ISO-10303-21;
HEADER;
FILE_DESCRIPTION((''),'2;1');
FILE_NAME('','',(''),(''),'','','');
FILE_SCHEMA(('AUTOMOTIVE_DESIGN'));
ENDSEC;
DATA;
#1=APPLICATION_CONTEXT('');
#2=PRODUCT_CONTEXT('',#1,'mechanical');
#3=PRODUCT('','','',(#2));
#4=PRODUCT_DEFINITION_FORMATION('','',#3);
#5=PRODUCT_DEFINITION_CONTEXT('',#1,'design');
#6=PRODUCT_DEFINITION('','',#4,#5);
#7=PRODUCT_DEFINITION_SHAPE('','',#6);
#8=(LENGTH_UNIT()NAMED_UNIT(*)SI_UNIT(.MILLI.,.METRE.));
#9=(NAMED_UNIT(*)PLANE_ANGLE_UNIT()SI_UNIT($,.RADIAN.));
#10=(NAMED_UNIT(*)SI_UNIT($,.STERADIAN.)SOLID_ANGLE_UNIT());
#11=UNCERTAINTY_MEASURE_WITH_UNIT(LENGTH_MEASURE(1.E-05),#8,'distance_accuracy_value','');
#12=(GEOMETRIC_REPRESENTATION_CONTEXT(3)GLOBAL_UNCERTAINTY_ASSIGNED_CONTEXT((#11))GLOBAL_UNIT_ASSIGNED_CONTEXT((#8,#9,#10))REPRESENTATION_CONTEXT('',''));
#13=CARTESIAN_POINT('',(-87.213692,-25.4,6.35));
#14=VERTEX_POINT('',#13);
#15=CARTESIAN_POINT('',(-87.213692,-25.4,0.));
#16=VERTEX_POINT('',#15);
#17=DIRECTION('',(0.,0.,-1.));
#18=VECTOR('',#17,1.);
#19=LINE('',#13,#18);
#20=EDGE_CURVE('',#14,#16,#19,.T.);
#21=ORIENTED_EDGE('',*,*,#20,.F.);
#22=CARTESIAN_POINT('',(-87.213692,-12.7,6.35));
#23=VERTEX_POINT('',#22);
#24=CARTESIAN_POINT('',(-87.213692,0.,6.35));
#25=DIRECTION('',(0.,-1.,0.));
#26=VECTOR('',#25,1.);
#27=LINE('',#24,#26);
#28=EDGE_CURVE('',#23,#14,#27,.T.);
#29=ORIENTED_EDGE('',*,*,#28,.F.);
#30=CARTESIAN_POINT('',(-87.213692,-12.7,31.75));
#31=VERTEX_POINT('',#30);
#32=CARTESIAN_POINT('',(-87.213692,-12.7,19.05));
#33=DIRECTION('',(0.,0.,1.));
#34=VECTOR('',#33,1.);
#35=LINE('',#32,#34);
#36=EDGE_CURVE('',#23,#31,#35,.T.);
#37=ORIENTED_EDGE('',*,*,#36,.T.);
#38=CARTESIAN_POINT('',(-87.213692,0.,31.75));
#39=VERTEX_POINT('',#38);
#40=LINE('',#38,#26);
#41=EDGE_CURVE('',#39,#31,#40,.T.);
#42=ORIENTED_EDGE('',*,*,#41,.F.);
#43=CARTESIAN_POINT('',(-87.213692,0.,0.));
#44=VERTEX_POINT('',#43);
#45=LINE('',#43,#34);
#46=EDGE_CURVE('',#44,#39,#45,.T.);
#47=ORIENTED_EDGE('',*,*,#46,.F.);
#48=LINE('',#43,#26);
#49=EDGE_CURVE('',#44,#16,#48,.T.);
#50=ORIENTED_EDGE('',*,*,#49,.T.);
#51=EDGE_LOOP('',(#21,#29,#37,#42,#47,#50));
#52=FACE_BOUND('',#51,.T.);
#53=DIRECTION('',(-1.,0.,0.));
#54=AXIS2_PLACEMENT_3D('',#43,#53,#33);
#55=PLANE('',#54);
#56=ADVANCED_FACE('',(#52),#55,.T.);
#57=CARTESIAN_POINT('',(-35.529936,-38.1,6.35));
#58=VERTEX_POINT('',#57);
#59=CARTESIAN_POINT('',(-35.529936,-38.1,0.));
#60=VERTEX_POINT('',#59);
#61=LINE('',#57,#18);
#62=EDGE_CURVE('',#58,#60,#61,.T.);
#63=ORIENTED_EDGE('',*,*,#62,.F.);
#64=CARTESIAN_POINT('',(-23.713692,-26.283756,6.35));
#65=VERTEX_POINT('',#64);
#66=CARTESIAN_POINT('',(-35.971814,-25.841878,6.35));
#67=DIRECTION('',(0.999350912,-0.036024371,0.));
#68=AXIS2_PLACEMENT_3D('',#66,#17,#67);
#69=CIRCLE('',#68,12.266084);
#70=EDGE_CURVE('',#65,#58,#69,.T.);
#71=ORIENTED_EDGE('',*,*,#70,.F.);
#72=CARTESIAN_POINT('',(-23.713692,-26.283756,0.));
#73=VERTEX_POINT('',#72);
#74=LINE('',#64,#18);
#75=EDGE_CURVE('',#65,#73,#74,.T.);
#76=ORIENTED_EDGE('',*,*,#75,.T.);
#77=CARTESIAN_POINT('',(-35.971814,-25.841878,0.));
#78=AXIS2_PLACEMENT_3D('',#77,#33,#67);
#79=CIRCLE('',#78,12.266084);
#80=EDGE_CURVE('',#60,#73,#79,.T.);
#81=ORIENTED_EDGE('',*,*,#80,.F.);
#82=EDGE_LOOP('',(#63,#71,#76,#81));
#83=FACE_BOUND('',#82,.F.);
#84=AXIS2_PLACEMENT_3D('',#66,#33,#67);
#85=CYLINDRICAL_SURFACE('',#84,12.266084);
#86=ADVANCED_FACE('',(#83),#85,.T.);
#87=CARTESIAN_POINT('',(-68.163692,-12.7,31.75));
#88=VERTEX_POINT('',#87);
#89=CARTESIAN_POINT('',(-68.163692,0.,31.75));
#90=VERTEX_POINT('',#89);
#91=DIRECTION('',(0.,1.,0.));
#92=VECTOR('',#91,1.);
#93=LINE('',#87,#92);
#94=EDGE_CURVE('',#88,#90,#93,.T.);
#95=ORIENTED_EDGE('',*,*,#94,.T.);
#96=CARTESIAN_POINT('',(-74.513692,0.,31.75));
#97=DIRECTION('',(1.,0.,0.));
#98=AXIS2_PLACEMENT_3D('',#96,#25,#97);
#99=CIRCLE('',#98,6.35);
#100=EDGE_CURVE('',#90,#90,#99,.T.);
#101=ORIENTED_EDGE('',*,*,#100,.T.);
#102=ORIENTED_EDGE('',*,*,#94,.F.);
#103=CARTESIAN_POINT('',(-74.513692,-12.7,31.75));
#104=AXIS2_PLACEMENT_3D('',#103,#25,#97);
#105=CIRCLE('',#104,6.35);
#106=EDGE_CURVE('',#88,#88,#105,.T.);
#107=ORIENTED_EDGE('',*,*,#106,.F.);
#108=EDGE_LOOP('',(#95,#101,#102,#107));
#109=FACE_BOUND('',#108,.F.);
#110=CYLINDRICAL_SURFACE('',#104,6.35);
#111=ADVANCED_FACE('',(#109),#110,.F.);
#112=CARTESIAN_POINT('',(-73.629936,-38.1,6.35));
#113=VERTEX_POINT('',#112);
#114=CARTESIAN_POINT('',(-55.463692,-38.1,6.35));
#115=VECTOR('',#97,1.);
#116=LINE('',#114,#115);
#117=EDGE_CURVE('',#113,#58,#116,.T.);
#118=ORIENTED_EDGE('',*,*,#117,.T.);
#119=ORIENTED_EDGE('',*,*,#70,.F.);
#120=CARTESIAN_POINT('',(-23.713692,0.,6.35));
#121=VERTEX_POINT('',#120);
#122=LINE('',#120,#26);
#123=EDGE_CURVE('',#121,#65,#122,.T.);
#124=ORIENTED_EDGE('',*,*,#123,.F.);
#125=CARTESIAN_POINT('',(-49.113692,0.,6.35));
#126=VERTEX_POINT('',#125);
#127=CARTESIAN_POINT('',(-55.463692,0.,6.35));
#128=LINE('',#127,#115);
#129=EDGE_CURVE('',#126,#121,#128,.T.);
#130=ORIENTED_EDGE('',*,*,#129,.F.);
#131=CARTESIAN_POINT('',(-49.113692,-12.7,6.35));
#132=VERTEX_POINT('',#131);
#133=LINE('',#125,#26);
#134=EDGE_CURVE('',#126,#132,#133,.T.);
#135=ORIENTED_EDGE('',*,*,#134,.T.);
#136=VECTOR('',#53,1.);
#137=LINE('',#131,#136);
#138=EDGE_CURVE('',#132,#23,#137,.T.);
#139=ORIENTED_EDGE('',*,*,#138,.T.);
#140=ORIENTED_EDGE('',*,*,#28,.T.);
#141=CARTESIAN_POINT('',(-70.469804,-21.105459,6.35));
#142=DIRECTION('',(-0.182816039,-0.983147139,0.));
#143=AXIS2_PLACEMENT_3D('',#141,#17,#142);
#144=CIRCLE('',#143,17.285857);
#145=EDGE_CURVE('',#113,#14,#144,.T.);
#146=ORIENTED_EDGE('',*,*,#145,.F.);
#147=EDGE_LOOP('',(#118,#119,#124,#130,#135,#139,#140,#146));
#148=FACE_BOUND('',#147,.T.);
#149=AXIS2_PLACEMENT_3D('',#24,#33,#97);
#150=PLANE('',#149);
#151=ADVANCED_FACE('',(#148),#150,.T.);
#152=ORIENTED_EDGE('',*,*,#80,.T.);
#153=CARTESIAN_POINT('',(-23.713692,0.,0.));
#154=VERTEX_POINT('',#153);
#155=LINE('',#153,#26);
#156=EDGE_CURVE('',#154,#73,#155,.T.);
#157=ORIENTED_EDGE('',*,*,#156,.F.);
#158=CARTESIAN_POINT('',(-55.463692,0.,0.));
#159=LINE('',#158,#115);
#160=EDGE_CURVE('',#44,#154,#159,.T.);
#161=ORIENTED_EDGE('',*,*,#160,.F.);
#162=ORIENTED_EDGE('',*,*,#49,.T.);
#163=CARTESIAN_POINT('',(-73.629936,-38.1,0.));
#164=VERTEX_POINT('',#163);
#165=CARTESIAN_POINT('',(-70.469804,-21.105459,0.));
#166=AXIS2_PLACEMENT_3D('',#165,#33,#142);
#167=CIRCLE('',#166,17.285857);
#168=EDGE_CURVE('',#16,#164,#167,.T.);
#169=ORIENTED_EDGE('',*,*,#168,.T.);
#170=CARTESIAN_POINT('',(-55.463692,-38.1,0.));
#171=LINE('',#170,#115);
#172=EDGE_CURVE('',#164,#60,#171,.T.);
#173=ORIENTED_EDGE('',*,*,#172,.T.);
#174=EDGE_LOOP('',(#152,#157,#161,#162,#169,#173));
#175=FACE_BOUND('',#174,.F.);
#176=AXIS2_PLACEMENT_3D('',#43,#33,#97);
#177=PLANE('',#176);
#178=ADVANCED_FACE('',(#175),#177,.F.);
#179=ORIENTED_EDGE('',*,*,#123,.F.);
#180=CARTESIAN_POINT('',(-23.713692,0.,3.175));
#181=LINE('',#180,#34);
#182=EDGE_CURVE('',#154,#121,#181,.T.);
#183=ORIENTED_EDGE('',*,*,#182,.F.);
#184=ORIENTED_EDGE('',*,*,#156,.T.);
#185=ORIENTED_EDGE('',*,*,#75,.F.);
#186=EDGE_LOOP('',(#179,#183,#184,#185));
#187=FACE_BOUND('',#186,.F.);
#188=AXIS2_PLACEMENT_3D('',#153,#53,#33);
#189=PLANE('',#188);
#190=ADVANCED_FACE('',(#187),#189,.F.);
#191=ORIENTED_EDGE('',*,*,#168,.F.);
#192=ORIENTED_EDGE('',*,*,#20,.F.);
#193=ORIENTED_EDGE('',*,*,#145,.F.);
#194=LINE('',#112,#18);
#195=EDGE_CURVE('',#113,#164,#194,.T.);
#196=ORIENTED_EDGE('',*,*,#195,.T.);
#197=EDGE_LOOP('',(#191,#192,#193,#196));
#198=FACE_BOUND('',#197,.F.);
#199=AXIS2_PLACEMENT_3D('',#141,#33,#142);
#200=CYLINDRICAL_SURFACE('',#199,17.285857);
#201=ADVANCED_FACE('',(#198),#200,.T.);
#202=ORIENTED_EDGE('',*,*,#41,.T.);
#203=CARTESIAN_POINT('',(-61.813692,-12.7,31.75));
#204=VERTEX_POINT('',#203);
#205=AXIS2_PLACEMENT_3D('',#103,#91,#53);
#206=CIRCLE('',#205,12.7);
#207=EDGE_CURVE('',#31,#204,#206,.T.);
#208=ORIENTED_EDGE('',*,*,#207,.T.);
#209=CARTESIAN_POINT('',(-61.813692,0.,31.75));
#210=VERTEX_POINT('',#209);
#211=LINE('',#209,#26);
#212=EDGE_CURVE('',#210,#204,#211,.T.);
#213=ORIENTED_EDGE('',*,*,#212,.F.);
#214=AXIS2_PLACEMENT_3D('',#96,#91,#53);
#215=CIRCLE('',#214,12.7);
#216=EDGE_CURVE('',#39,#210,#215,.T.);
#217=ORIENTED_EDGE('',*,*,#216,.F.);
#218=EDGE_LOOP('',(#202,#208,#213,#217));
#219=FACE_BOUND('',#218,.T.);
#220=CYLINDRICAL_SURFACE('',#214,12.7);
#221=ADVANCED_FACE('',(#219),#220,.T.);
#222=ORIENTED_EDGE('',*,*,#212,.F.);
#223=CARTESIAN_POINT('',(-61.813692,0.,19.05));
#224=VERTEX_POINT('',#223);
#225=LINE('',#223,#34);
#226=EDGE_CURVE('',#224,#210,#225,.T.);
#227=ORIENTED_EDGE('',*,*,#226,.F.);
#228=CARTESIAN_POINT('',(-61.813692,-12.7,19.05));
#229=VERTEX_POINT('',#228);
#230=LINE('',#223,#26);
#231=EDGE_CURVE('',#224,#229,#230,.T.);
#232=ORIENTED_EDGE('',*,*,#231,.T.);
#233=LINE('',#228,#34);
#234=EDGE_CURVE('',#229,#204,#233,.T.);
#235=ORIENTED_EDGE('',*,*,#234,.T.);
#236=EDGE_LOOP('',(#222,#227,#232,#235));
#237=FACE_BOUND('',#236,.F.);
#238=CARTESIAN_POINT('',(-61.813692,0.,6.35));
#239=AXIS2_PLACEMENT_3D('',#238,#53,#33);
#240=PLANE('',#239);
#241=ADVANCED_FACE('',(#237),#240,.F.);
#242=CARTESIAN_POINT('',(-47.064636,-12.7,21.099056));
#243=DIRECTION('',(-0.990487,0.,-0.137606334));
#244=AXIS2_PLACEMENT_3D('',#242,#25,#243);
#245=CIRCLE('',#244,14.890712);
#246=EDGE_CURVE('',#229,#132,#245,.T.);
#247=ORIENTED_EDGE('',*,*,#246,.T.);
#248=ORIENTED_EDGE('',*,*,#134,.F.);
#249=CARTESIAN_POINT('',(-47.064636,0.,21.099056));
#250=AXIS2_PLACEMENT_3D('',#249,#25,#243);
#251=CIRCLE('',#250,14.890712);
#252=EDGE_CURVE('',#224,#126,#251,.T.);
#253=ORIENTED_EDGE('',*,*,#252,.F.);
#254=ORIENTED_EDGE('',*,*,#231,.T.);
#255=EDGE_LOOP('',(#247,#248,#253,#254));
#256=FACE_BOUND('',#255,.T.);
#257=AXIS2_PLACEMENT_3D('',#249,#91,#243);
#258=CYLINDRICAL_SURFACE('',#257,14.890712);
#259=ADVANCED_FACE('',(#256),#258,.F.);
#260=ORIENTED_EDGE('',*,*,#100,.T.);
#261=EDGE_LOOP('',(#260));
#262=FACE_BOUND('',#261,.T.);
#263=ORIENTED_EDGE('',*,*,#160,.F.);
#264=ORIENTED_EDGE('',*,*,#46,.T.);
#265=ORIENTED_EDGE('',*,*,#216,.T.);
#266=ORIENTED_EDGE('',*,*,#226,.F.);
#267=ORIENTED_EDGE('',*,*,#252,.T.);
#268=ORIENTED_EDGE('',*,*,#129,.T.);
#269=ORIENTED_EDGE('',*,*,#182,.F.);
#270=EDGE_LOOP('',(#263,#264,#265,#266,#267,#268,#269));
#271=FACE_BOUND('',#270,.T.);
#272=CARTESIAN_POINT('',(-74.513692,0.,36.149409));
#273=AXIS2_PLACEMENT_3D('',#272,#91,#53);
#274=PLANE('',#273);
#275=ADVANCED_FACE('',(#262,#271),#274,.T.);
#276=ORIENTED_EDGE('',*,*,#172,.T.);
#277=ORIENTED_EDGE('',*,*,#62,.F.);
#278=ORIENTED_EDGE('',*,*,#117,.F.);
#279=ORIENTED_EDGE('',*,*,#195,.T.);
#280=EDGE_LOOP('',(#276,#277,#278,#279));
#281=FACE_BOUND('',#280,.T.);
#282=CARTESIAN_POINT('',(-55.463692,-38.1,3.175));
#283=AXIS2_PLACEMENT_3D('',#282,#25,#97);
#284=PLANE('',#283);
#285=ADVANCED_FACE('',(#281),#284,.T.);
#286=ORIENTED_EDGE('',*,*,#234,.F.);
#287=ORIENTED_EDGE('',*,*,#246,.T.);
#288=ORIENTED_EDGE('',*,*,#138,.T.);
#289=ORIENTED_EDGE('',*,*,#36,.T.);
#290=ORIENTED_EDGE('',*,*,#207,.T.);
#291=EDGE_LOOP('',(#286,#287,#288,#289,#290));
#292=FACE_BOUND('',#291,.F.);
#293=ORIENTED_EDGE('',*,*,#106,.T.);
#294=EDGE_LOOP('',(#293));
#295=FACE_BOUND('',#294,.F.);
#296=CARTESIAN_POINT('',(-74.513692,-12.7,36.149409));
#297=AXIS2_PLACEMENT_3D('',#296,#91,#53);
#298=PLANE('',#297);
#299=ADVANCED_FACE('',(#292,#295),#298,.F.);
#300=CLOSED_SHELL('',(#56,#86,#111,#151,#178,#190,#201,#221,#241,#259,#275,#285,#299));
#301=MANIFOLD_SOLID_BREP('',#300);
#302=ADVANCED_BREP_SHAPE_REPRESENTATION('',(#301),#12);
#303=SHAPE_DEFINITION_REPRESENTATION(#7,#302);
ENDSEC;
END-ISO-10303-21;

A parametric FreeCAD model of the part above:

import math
import FreeCAD as App
import Part
import Sketcher
Q = App.Units.Quantity

doc = App.newDocument("Part")
body = doc.addObject("PartDesign::Body", "Body")

# Sketch on XZ plane
sketch1 = doc.addObject("Sketcher::SketchObject", "Sketch")
body.addObject(sketch1)
sketch1.AttachmentSupport = (doc.XZ_Plane, [""])
sketch1.MapMode = "FlatFace"
sketch1.addGeometry(Part.LineSegment(App.Vector(-87, 6, 0), App.Vector(-87, 0, 0)), False)
sketch1.addGeometry(Part.LineSegment(App.Vector(-87, 0, 0), App.Vector(-24, 0, 0)), False)
sketch1.addGeometry(Part.LineSegment(App.Vector(-24, 0, 0), App.Vector(-24, 6, 0)), False)
sketch1.addGeometry(Part.LineSegment(App.Vector(-24, 6, 0), App.Vector(-87, 6, 0)), False)
sketch1.addConstraint(Sketcher.Constraint("Coincident", 0, 2, 1, 1))
sketch1.addConstraint(Sketcher.Constraint("Coincident", 1, 2, 2, 1))
sketch1.addConstraint(Sketcher.Constraint("Coincident", 2, 2, 3, 1))
sketch1.addConstraint(Sketcher.Constraint("Coincident", 3, 2, 0, 1))
sketch1.addConstraint(Sketcher.Constraint("Vertical", 0))
sketch1.addConstraint(Sketcher.Constraint("Horizontal", 1))
sketch1.addConstraint(Sketcher.Constraint("Vertical", 2))
sketch1.addConstraint(Sketcher.Constraint("Horizontal", 3))
sketch1.addConstraint(Sketcher.Constraint("PointOnObject", 0, 2, -1))
sketch1.addConstraint(Sketcher.Constraint("DistanceX", 1, 1, 1, 2, Q("2.5 in")))
sketch1.addConstraint(Sketcher.Constraint("DistanceY", 0, 2, 0, 1, Q("0.25 in")))
sketch1.addConstraint(Sketcher.Constraint("DistanceX", 0, 2, -1, 1, 87.213692))
pad1 = doc.addObject("PartDesign::Pad", "Pad")
body.addObject(pad1)
pad1.Profile = sketch1
pad1.Length = Q("1.5 in")

# Sketch on XY plane
sketch2 = doc.addObject("Sketcher::SketchObject", "Sketch001")
body.addObject(sketch2)
sketch2.AttachmentSupport = (doc.XY_Plane, [""])
sketch2.MapMode = "FlatFace"
sketch2.AttachmentOffset = App.Placement(App.Vector(0, 0, 0.25 * 25.4), App.Rotation())
sketch2.addGeometry(Part.ArcOfCircle(Part.Circle(App.Vector(-36, -26, 0), App.Vector(0, 0, 1), 12), math.radians(-88), math.radians(-2)), False)
sketch2.addGeometry(Part.LineSegment(App.Vector(-36, -38, 0), App.Vector(-24, -38, 0)), False)
sketch2.addGeometry(Part.LineSegment(App.Vector(-24, -38, 0), App.Vector(-24, -26, 0)), False)
sketch2.addConstraint(Sketcher.Constraint("Coincident", 0, 1, 1, 1))
sketch2.addConstraint(Sketcher.Constraint("Coincident", 1, 2, 2, 1))
sketch2.addConstraint(Sketcher.Constraint("Coincident", 2, 2, 0, 2))
sketch2.addConstraint(Sketcher.Constraint("Horizontal", 1))
sketch2.addConstraint(Sketcher.Constraint("Vertical", 2))
sketch2.addConstraint(Sketcher.Constraint("Equal", 1, 2))
sketch2.addConstraint(Sketcher.Constraint("DistanceY", 0, 1, -1, 1, Q("1.5 in")))
sketch2.addConstraint(Sketcher.Constraint("Radius", 0, 12.266084))
sketch2.addConstraint(Sketcher.Constraint("DistanceX", 1, 1, 1, 2, 11.816244))
sketch2.addConstraint(Sketcher.Constraint("DistanceX", 1, 2, -1, 1, 23.713692))
pocket1 = doc.addObject("PartDesign::Pocket", "Pocket")
body.addObject(pocket1)
pocket1.Profile = sketch2
pocket1.Length = Q("1 in")

# Sketch on XY plane
sketch3 = doc.addObject("Sketcher::SketchObject", "Sketch002")
body.addObject(sketch3)
sketch3.AttachmentSupport = (doc.XY_Plane, [""])
sketch3.MapMode = "FlatFace"
sketch3.AttachmentOffset = App.Placement(App.Vector(0, 0, 0.25 * 25.4), App.Rotation())
sketch3.addGeometry(Part.ArcOfCircle(Part.Circle(App.Vector(-70, -21, 0), App.Vector(0, 0, 1), 17), math.radians(-166), math.radians(-101)), False)
sketch3.addGeometry(Part.LineSegment(App.Vector(-87, -25, 0), App.Vector(-87, -38, 0)), False)
sketch3.addGeometry(Part.LineSegment(App.Vector(-87, -38, 0), App.Vector(-74, -38, 0)), False)
sketch3.addConstraint(Sketcher.Constraint("Coincident", 0, 1, 1, 1))
sketch3.addConstraint(Sketcher.Constraint("Coincident", 1, 2, 2, 1))
sketch3.addConstraint(Sketcher.Constraint("Coincident", 2, 2, 0, 2))
sketch3.addConstraint(Sketcher.Constraint("Vertical", 1))
sketch3.addConstraint(Sketcher.Constraint("Horizontal", 2))
sketch3.addConstraint(Sketcher.Constraint("DistanceY", 1, 2, 1, 1, Q("0.5 in")))
sketch3.addConstraint(Sketcher.Constraint("DistanceY", 0, 1, -1, 1, Q("1 in")))
sketch3.addConstraint(Sketcher.Constraint("Radius", 0, 17.285857))
sketch3.addConstraint(Sketcher.Constraint("DistanceX", 2, 1, 2, 2, 13.583756))
sketch3.addConstraint(Sketcher.Constraint("DistanceX", 0, 1, -1, 1, 87.213692))
pocket2 = doc.addObject("PartDesign::Pocket", "Pocket001")
body.addObject(pocket2)
pocket2.Profile = sketch3
pocket2.Length = Q("1 in")

# Sketch on XZ plane
sketch4 = doc.addObject("Sketcher::SketchObject", "Sketch003")
body.addObject(sketch4)
sketch4.AttachmentSupport = (doc.XZ_Plane, [""])
sketch4.MapMode = "FlatFace"
sketch4.addGeometry(Part.LineSegment(App.Vector(-62, 32, 0), App.Vector(-62, 6, 0)), False)
sketch4.addGeometry(Part.LineSegment(App.Vector(-62, 6, 0), App.Vector(-87, 6, 0)), False)
sketch4.addGeometry(Part.LineSegment(App.Vector(-87, 6, 0), App.Vector(-87, 32, 0)), False)
sketch4.addGeometry(Part.LineSegment(App.Vector(-87, 32, 0), App.Vector(-62, 32, 0)), False)
sketch4.addConstraint(Sketcher.Constraint("Coincident", 0, 2, 1, 1))
sketch4.addConstraint(Sketcher.Constraint("Coincident", 1, 2, 2, 1))
sketch4.addConstraint(Sketcher.Constraint("Coincident", 2, 2, 3, 1))
sketch4.addConstraint(Sketcher.Constraint("Coincident", 3, 2, 0, 1))
sketch4.addConstraint(Sketcher.Constraint("Vertical", 0))
sketch4.addConstraint(Sketcher.Constraint("Horizontal", 1))
sketch4.addConstraint(Sketcher.Constraint("Vertical", 2))
sketch4.addConstraint(Sketcher.Constraint("Horizontal", 3))
sketch4.addConstraint(Sketcher.Constraint("Equal", 3, 0))
sketch4.addConstraint(Sketcher.Constraint("DistanceX", 1, 2, 1, 1, Q("1 in")))
sketch4.addConstraint(Sketcher.Constraint("DistanceY", -1, 1, 0, 2, Q("0.25 in")))
sketch4.addConstraint(Sketcher.Constraint("DistanceX", 0, 2, -1, 1, 61.813692))
pad2 = doc.addObject("PartDesign::Pad", "Pad001")
body.addObject(pad2)
pad2.Profile = sketch4
pad2.Length = Q("0.5 in")

# Sketch on XZ plane
sketch5 = doc.addObject("Sketcher::SketchObject", "Sketch004")
body.addObject(sketch5)
sketch5.AttachmentSupport = (doc.XZ_Plane, [""])
sketch5.MapMode = "FlatFace"
sketch5.addGeometry(Part.ArcOfCircle(Part.Circle(App.Vector(-47, 21, 0), App.Vector(0, 0, 1), 15), math.radians(-172), math.radians(-98)), False)
sketch5.addGeometry(Part.LineSegment(App.Vector(-49, 6, 0), App.Vector(-62, 6, 0)), False)
sketch5.addGeometry(Part.LineSegment(App.Vector(-62, 6, 0), App.Vector(-62, 19, 0)), False)
sketch5.addConstraint(Sketcher.Constraint("Coincident", 0, 2, 1, 1))
sketch5.addConstraint(Sketcher.Constraint("Coincident", 1, 2, 2, 1))
sketch5.addConstraint(Sketcher.Constraint("Coincident", 2, 2, 0, 1))
sketch5.addConstraint(Sketcher.Constraint("Horizontal", 1))
sketch5.addConstraint(Sketcher.Constraint("Vertical", 2))
sketch5.addConstraint(Sketcher.Constraint("Equal", 1, 2))
sketch5.addConstraint(Sketcher.Constraint("DistanceX", 1, 2, 1, 1, Q("0.5 in")))
sketch5.addConstraint(Sketcher.Constraint("DistanceY", -1, 1, 0, 2, Q("0.25 in")))
sketch5.addConstraint(Sketcher.Constraint("Radius", 0, 14.890712))
sketch5.addConstraint(Sketcher.Constraint("DistanceX", 0, 2, -1, 1, 49.113692))
pad3 = doc.addObject("PartDesign::Pad", "Pad002")
body.addObject(pad3)
pad3.Profile = sketch5
pad3.Length = Q("0.5 in")

# Sketch on XZ plane
sketch6 = doc.addObject("Sketcher::SketchObject", "Sketch005")
body.addObject(sketch6)
sketch6.AttachmentSupport = (doc.XZ_Plane, [""])
sketch6.MapMode = "FlatFace"
sketch6.addGeometry(Part.LineSegment(App.Vector(-62, 32, 0), App.Vector(-87, 32, 0)), False)
sketch6.addGeometry(Part.ArcOfCircle(Part.Circle(App.Vector(-75, 32, 0), App.Vector(0, 0, 1), 13), math.radians(0), math.radians(180)), False)
sketch6.addConstraint(Sketcher.Constraint("Coincident", 0, 1, 1, 1))
sketch6.addConstraint(Sketcher.Constraint("Coincident", 1, 2, 0, 2))
sketch6.addConstraint(Sketcher.Constraint("Horizontal", 0))
sketch6.addConstraint(Sketcher.Constraint("Horizontal", 1, 3, 0, 1))
sketch6.addConstraint(Sketcher.Constraint("Radius", 1, Q("0.5 in")))
sketch6.addConstraint(Sketcher.Constraint("DistanceY", -1, 1, 1, 3, Q("1.25 in")))
sketch6.addConstraint(Sketcher.Constraint("DistanceX", 1, 3, -1, 1, 74.513692))
pad4 = doc.addObject("PartDesign::Pad", "Pad003")
body.addObject(pad4)
pad4.Profile = sketch6
pad4.Length = Q("0.5 in")

# Sketch on XZ plane
sketch7 = doc.addObject("Sketcher::SketchObject", "Sketch006")
body.addObject(sketch7)
sketch7.AttachmentSupport = (doc.XZ_Plane, [""])
sketch7.MapMode = "FlatFace"
sketch7.AttachmentOffset = App.Placement(App.Vector(0, 0, 0.5 * 25.4), App.Rotation())
sketch7.addGeometry(Part.Circle(App.Vector(-75, 32, 0), App.Vector(0, 0, 1), 6), False)
sketch7.addConstraint(Sketcher.Constraint("Diameter", 0, Q("0.5 in")))
sketch7.addConstraint(Sketcher.Constraint("DistanceY", -1, 1, 0, 3, Q("1.25 in")))
sketch7.addConstraint(Sketcher.Constraint("DistanceX", 0, 3, -1, 1, 74.513692))
pocket3 = doc.addObject("PartDesign::Pocket", "Pocket002")
body.addObject(pocket3)
pocket3.Profile = sketch7
pocket3.Length = Q("1 in")

doc.recompute()
